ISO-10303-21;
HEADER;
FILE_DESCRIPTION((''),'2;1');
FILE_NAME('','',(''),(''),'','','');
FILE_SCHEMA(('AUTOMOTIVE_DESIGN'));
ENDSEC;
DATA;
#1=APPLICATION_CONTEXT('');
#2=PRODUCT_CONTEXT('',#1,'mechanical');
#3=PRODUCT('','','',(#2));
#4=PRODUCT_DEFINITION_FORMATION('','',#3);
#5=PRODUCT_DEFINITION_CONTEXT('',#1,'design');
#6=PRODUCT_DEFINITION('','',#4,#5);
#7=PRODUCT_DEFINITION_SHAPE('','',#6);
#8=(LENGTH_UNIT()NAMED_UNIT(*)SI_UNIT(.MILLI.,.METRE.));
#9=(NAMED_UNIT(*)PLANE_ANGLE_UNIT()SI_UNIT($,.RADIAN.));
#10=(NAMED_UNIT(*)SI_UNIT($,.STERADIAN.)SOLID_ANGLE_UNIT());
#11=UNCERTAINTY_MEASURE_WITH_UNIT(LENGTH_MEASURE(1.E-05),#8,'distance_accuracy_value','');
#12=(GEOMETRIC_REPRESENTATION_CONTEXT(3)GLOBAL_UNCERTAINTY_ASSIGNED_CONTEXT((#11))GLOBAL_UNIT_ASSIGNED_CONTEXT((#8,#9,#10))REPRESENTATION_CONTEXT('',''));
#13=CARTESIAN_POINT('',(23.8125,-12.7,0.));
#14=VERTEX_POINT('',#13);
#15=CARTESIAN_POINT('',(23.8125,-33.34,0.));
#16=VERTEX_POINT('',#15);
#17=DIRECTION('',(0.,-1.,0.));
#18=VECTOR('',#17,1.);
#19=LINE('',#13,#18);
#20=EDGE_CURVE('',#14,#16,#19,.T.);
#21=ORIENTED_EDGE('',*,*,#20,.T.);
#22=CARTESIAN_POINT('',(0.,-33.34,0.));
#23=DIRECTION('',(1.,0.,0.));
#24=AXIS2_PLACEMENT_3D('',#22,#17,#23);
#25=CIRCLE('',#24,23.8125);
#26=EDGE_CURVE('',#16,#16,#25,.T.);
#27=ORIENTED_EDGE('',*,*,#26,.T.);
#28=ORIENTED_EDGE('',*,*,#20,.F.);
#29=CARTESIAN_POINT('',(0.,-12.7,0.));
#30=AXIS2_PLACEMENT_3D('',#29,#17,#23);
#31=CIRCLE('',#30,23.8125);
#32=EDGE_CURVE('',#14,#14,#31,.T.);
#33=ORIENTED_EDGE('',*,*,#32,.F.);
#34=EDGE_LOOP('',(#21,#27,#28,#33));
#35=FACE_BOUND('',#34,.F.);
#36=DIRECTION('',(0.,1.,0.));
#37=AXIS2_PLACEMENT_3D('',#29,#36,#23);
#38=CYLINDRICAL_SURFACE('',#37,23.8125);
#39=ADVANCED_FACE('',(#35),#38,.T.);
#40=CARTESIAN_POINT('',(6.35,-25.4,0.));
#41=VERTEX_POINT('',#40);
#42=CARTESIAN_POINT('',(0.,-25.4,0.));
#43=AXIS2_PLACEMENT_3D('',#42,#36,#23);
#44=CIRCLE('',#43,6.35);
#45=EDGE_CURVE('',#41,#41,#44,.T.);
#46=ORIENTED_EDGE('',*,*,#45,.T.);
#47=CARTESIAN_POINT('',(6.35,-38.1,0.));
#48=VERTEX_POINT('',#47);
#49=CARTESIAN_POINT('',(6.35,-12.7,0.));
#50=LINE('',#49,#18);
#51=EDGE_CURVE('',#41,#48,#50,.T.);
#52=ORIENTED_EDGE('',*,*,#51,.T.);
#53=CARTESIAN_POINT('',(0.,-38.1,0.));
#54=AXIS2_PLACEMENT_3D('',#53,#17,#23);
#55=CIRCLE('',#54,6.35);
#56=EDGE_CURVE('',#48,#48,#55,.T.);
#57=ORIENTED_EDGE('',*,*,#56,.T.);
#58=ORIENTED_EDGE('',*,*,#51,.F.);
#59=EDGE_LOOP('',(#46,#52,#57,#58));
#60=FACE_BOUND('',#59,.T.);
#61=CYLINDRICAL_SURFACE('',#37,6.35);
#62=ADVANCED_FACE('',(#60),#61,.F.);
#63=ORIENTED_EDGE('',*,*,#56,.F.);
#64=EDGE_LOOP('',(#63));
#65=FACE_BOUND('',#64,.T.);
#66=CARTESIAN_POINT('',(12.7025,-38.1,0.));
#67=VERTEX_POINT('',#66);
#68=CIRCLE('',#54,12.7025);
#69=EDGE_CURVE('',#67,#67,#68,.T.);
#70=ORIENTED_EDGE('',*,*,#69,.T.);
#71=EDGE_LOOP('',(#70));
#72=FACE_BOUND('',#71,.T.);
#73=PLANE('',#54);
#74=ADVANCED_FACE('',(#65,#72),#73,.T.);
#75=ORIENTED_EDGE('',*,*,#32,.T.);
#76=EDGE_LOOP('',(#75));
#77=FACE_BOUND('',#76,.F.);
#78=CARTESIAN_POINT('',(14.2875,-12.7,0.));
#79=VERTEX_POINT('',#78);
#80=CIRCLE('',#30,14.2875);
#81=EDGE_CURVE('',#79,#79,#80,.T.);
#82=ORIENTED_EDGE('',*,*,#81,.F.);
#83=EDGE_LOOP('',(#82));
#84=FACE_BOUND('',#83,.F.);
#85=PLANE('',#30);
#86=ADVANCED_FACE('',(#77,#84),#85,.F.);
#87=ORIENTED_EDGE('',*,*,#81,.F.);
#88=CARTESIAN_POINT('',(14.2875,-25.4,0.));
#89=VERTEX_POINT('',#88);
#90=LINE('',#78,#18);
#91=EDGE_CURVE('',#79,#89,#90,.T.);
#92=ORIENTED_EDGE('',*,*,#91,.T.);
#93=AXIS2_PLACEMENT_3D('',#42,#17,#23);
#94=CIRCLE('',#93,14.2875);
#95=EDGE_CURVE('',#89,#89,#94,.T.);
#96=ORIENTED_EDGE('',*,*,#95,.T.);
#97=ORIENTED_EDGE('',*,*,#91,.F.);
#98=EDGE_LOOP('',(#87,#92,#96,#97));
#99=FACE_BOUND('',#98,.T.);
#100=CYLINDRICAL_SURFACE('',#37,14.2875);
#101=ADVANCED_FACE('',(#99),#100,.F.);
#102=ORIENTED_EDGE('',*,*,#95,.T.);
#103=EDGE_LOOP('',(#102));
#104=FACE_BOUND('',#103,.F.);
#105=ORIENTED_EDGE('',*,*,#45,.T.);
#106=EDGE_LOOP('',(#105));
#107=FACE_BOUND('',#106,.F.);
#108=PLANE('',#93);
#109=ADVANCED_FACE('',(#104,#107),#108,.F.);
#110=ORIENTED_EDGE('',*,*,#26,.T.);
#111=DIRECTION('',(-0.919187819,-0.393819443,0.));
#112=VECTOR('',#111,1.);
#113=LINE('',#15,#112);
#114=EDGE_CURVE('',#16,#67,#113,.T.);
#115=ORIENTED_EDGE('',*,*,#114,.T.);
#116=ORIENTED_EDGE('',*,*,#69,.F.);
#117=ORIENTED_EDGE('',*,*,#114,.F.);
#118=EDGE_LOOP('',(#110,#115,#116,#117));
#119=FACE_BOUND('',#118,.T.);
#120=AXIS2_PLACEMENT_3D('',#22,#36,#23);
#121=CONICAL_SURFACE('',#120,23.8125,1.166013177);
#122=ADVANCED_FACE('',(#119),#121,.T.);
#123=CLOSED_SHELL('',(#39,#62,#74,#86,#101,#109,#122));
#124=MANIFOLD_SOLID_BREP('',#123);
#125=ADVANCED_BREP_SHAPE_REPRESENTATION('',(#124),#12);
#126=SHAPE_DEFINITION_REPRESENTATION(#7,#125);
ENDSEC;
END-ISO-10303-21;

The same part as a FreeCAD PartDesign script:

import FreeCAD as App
import Part
import Sketcher
Q = App.Units.Quantity


def edges_at(feature, points):
    """Names of the edges that pass closest to the given points."""
    edges = feature.Shape.Edges
    near = lambda p: min(range(len(edges)), key=lambda i: edges[i].distToShape(Part.Vertex(*p))[0])
    return sorted({f"Edge{near(p) + 1}" for p in points})

doc = App.newDocument("Part")
body = doc.addObject("PartDesign::Body", "Body")

# Sketch on XZ plane
sketch1 = body.newObject("Sketcher::SketchObject", "Sketch")
sketch1.AttachmentSupport = (doc.getObject("XZ_Plane"), [""])
sketch1.MapMode = "FlatFace"
sketch1.addGeometry(Part.Circle(App.Vector(0, 0, 0), App.Vector(0, 0, 1), 14.2875), False)
sketch1.addConstraint(Sketcher.Constraint("Coincident", 0, 3, -1, 1))
sketch1.addConstraint(Sketcher.Constraint("Diameter", 0, Q("1.125 in")))
pad1 = body.newObject("PartDesign::Pad", "Pad")
pad1.Profile = sketch1
pad1.Length = Q("0.5 in")
body2 = doc.addObject("PartDesign::Body", "Body001")

# Sketch on XZ plane
sketch2 = body2.newObject("Sketcher::SketchObject", "Sketch001")
sketch2.AttachmentSupport = (doc.getObject("XZ_Plane001"), [""])
sketch2.MapMode = "FlatFace"
sketch2.addGeometry(Part.Circle(App.Vector(0, 0, 0), App.Vector(0, 0, 1), 23.8125), False)
sketch2.addGeometry(Part.Circle(App.Vector(0, 0, 0), App.Vector(0, 0, 1), 6.35), False)
sketch2.addConstraint(Sketcher.Constraint("Coincident", 0, 3, -1, 1))
sketch2.addConstraint(Sketcher.Constraint("Coincident", 1, 3, -1, 1))
sketch2.addConstraint(Sketcher.Constraint("Diameter", 1, Q("0.5 in")))
sketch2.addConstraint(Sketcher.Constraint("Diameter", 0, Q("1.875 in")))
pad2 = body2.newObject("PartDesign::Pad", "Pad001")
pad2.Profile = sketch2
pad2.Length = Q("1 in")
doc.recompute()

boolean = body2.newObject("PartDesign::Boolean", "Boolean")
boolean.Type = "Cut"
boolean.addObjects([body])
doc.recompute()

chamfer = body2.newObject("PartDesign::Chamfer", "Chamfer")
chamfer.Base = (boolean, edges_at(boolean, [(-23.812, -25.4, 0)]))
chamfer.ChamferType = "Two distances"
chamfer.Size = 4.76
chamfer.Size2 = 11.11
body3 = doc.addObject("PartDesign::Body", "Body002")
doc.recompute()

body2.Placement = App.Placement(App.Vector(0, -12.7, 0), App.Rotation(App.Vector(0, 0, 1), 0))
boolean2 = body3.newObject("PartDesign::Boolean", "Boolean001")
boolean2.Type = "Fuse"
boolean2.addObjects([body2])

doc.recompute()
